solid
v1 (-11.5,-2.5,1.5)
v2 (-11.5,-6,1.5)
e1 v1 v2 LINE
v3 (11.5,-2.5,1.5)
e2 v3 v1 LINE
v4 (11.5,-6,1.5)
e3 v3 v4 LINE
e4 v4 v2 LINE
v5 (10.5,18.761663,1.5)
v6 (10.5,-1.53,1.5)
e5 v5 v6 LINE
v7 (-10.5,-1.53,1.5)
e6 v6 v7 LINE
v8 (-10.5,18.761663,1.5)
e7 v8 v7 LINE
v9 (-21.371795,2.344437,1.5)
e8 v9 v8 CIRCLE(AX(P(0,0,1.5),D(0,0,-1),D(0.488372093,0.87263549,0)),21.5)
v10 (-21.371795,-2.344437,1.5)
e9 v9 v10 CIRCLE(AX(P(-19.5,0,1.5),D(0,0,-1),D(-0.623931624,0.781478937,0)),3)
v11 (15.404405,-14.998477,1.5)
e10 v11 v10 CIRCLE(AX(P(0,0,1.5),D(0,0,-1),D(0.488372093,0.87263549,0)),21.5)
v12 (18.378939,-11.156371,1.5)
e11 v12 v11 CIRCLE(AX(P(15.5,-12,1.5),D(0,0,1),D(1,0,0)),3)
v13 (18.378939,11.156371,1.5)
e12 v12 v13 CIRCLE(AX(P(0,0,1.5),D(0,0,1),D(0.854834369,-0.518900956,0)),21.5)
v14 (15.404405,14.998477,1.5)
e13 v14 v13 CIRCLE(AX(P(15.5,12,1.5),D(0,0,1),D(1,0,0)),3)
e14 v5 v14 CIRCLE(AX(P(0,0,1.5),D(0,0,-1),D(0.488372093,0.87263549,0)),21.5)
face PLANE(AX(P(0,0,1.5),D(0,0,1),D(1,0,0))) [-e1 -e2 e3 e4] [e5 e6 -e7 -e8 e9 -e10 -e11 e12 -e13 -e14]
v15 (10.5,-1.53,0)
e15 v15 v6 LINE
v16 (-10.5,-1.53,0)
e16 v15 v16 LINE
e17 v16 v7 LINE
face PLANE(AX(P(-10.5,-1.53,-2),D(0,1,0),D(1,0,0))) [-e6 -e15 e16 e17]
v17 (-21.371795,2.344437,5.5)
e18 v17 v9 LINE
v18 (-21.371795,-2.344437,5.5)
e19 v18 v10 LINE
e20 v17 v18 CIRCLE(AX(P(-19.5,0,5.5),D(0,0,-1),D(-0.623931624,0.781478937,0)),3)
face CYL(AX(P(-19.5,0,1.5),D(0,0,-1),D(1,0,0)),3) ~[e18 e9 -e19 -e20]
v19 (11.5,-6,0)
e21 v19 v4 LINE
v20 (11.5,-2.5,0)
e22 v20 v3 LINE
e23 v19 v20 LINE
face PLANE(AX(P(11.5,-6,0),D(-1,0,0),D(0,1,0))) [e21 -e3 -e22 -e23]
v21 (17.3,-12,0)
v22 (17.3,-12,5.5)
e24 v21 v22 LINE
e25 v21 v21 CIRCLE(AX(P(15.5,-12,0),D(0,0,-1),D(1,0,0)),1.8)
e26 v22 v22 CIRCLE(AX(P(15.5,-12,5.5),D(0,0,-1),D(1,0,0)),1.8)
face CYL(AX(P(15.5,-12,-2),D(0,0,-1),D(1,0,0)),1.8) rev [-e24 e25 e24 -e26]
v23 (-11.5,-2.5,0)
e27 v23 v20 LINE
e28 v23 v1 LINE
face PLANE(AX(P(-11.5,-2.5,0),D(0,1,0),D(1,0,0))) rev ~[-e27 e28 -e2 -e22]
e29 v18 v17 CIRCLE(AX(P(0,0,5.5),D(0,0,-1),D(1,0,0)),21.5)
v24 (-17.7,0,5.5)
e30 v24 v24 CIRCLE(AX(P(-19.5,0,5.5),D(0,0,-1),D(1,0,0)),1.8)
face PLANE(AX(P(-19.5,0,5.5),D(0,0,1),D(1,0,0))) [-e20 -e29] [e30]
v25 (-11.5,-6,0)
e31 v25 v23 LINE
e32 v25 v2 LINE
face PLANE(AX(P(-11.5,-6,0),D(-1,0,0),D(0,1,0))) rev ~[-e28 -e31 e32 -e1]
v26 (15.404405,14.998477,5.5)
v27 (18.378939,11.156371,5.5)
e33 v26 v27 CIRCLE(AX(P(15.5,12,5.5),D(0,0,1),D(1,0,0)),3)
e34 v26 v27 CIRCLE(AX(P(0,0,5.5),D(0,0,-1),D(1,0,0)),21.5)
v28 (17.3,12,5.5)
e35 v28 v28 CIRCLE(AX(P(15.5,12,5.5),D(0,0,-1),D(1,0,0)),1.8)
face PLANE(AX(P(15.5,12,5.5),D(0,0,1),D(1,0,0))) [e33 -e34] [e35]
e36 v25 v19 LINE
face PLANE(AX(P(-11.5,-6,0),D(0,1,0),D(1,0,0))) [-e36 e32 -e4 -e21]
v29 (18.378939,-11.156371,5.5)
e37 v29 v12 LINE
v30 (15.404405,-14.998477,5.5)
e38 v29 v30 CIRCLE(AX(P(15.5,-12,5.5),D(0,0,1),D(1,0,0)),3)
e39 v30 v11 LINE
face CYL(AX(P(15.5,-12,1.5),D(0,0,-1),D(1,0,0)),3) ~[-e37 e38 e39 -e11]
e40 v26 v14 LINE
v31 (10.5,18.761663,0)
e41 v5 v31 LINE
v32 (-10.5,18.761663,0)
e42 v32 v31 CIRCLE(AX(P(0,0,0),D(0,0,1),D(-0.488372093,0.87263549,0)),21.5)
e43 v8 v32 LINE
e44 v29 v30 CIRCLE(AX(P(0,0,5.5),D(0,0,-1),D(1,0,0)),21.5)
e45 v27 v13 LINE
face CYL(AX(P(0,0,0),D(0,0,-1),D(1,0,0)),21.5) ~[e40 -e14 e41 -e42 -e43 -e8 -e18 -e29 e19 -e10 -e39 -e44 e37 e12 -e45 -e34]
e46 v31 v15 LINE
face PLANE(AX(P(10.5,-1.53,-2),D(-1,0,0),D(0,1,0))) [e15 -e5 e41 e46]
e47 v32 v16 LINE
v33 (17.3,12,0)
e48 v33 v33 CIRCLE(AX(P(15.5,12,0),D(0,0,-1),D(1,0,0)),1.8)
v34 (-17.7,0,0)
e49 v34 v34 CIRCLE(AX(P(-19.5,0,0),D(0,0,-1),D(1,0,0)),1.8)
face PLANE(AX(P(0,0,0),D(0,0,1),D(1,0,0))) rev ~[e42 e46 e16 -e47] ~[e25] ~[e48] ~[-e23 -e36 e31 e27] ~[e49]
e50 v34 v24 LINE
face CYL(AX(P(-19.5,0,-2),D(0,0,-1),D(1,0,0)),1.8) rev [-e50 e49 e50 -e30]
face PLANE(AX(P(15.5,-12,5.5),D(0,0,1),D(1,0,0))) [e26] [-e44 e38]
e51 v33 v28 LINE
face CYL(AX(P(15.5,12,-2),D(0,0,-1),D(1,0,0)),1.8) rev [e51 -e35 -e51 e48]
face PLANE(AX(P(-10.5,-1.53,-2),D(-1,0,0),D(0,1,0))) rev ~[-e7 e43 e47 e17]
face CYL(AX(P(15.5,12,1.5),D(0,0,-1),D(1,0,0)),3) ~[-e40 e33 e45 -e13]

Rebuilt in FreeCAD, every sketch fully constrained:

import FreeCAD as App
import Part
import Sketcher
Q = App.Units.Quantity


def add_polygon(sketch, points):
    """Adds a closed chain of lines whose ends are joined by coincident constraints."""
    first, n = sketch.GeometryCount, len(points)
    for a, b in zip(points, points[1:] + points[:1]):
        sketch.addGeometry(Part.LineSegment(App.Vector(*a, 0), App.Vector(*b, 0)), False)
    for i in range(n):
        sketch.addConstraint(Sketcher.Constraint("Coincident", first + i, 2, first + (i + 1) % n, 1))

doc = App.newDocument("Part")
params = doc.addObject("Spreadsheet::Sheet", "Params")
for row, (alias, value) in enumerate([
    ("sketch1_diameter", "43 mm"),
    ("pad1_length", "10 mm"),
    ("sketch2_width", "50 mm"),
    ("pad2_length", "10 mm"),
    ("sketch3_diameter", "3.6 mm"),
    ("pad3_length", "10 mm"),
    ("sketch4_diameter", "6 mm"),
    ("pad4_length", "4 mm"),
    ("sketch5_diameter", "3.6 mm"),
    ("pad5_length", "10 mm"),
    ("sketch6_diameter", "6 mm"),
    ("pad6_length", "4 mm"),
    ("sketch7_diameter", "3.6 mm"),
    ("pad7_length", "10 mm"),
    ("sketch8_diameter", "6 mm"),
    ("pad8_length", "4 mm"),
    ("sketch9_width", "23 mm"),
    ("sketch9_height", "3.5 mm"),
    ("pad9_length", "2 mm"),
    ("sketch10_width", "21 mm"),
    ("sketch10_height", "25 mm"),
    ("pad10_length", "5 mm"),
    ("sketch11_diameter", "43 mm"),
    ("pad11_length", "1.5 mm"),
], start=1):
    params.set(f"A{row}", alias)
    params.set(f"B{row}", "=" + value)
    params.setAlias(f"B{row}", alias)

body = doc.addObject("PartDesign::Body", "Body")

sketch1 = doc.addObject("Sketcher::SketchObject", "Sketch")
body.addObject(sketch1)
sketch1.AttachmentSupport = (doc.XY_Plane, [""])
sketch1.MapMode = "FlatFace"
sketch1.addGeometry(Part.Circle(App.Vector(0, 0, 0), App.Vector(0, 0, 1), 22), False)
sketch1.addConstraint(Sketcher.Constraint("Coincident", 0, 3, -1, 1))
sketch1.addConstraint(Sketcher.Constraint("Diameter", 0, Q("43 mm")))
sketch1.setExpression("Constraints[1]", "Params.sketch1_diameter")
pad1 = doc.addObject("PartDesign::Pad", "Pad")
body.addObject(pad1)
pad1.Profile = sketch1
pad1.setExpression("Length", "Params.pad1_length")
body2 = doc.addObject("PartDesign::Body", "Body001")

sketch2 = doc.addObject("Sketcher::SketchObject", "Sketch001")
body2.addObject(sketch2)
sketch2.AttachmentSupport = (doc.getObject("XY_Plane001"), [""])
sketch2.MapMode = "FlatFace"
add_polygon(sketch2, [(-25, 25), (-25, -25), (25, -25), (25, 25)])
sketch2.addConstraint(Sketcher.Constraint("Vertical", 0))
sketch2.addConstraint(Sketcher.Constraint("Horizontal", 1))
sketch2.addConstraint(Sketcher.Constraint("Vertical", 2))
sketch2.addConstraint(Sketcher.Constraint("Horizontal", 3))
sketch2.addConstraint(Sketcher.Constraint("Symmetric", 0, 2, 2, 2, -1, 1))
sketch2.addConstraint(Sketcher.Constraint("Equal", 3, 0))
sketch2.addConstraint(Sketcher.Constraint("DistanceX", 1, 1, 1, 2, Q("50 mm")))
sketch2.setExpression("Constraints[10]", "Params.sketch2_width")
pad2 = doc.addObject("PartDesign::Pad", "Pad001")
body2.addObject(pad2)
pad2.Profile = sketch2
pad2.setExpression("Length", "Params.pad2_length")
doc.recompute()

boolean = doc.addObject("PartDesign::Boolean", "Boolean")
body2.addObject(boolean)
boolean.Type = "Cut"
boolean.addObjects([body])
body3 = doc.addObject("PartDesign::Body", "Body002")

sketch3 = doc.addObject("Sketcher::SketchObject", "Sketch002")
body3.addObject(sketch3)
sketch3.AttachmentSupport = (doc.getObject("XY_Plane002"), [""])
sketch3.MapMode = "FlatFace"
sketch3.AttachmentOffset = App.Placement(App.Vector(0, 0, -2), App.Rotation())
sketch3.addGeometry(Part.Circle(App.Vector(15.5, 12, 0), App.Vector(0, 0, 1), 1.8), False)
sketch3.addConstraint(Sketcher.Constraint("Diameter", 0, Q("3.6 mm")))
sketch3.addConstraint(Sketcher.Constraint("DistanceY", -1, 1, 0, 3, Q("12 mm")))
sketch3.addConstraint(Sketcher.Constraint("DistanceX", -1, 1, 0, 3, Q("15.5 mm")))
sketch3.setExpression("Constraints[0]", "Params.sketch3_diameter")
pad3 = doc.addObject("PartDesign::Pad", "Pad002")
body3.addObject(pad3)
pad3.Profile = sketch3
pad3.setExpression("Length", "Params.pad3_length")
body4 = doc.addObject("PartDesign::Body", "Body003")

sketch4 = doc.addObject("Sketcher::SketchObject", "Sketch003")
body4.addObject(sketch4)
sketch4.AttachmentSupport = (doc.getObject("XY_Plane003"), [""])
sketch4.MapMode = "FlatFace"
sketch4.AttachmentOffset = App.Placement(App.Vector(0, 0, 1.5), App.Rotation())
sketch4.addGeometry(Part.Circle(App.Vector(15.5, 12, 0), App.Vector(0, 0, 1), 3), False)
sketch4.addConstraint(Sketcher.Constraint("Diameter", 0, Q("6 mm")))
sketch4.addConstraint(Sketcher.Constraint("DistanceY", -1, 1, 0, 3, Q("12 mm")))
sketch4.addConstraint(Sketcher.Constraint("DistanceX", -1, 1, 0, 3, Q("15.5 mm")))
sketch4.setExpression("Constraints[0]", "Params.sketch4_diameter")
pad4 = doc.addObject("PartDesign::Pad", "Pad003")
body4.addObject(pad4)
pad4.Profile = sketch4
pad4.setExpression("Length", "Params.pad4_length")
body5 = doc.addObject("PartDesign::Body", "Body004")

sketch5 = doc.addObject("Sketcher::SketchObject", "Sketch004")
body5.addObject(sketch5)
sketch5.AttachmentSupport = (doc.getObject("XY_Plane004"), [""])
sketch5.MapMode = "FlatFace"
sketch5.AttachmentOffset = App.Placement(App.Vector(0, 0, -2), App.Rotation())
sketch5.addGeometry(Part.Circle(App.Vector(15.5, -12, 0), App.Vector(0, 0, 1), 1.8), False)
sketch5.addConstraint(Sketcher.Constraint("Diameter", 0, Q("3.6 mm")))
sketch5.addConstraint(Sketcher.Constraint("DistanceY", 0, 3, -1, 1, Q("12 mm")))
sketch5.addConstraint(Sketcher.Constraint("DistanceX", -1, 1, 0, 3, Q("15.5 mm")))
sketch5.setExpression("Constraints[0]", "Params.sketch5_diameter")
pad5 = doc.addObject("PartDesign::Pad", "Pad004")
body5.addObject(pad5)
pad5.Profile = sketch5
pad5.setExpression("Length", "Params.pad5_length")
body6 = doc.addObject("PartDesign::Body", "Body005")

sketch6 = doc.addObject("Sketcher::SketchObject", "Sketch005")
body6.addObject(sketch6)
sketch6.AttachmentSupport = (doc.getObject("XY_Plane005"), [""])
sketch6.MapMode = "FlatFace"
sketch6.AttachmentOffset = App.Placement(App.Vector(0, 0, 1.5), App.Rotation())
sketch6.addGeometry(Part.Circle(App.Vector(15.5, -12, 0), App.Vector(0, 0, 1), 3), False)
sketch6.addConstraint(Sketcher.Constraint("Diameter", 0, Q("6 mm")))
sketch6.addConstraint(Sketcher.Constraint("DistanceY", 0, 3, -1, 1, Q("12 mm")))
sketch6.addConstraint(Sketcher.Constraint("DistanceX", -1, 1, 0, 3, Q("15.5 mm")))
sketch6.setExpression("Constraints[0]", "Params.sketch6_diameter")
pad6 = doc.addObject("PartDesign::Pad", "Pad005")
body6.addObject(pad6)
pad6.Profile = sketch6
pad6.setExpression("Length", "Params.pad6_length")
body7 = doc.addObject("PartDesign::Body", "Body006")

sketch7 = doc.addObject("Sketcher::SketchObject", "Sketch006")
body7.addObject(sketch7)
sketch7.AttachmentSupport = (doc.getObject("XY_Plane006"), [""])
sketch7.MapMode = "FlatFace"
sketch7.AttachmentOffset = App.Placement(App.Vector(0, 0, -2), App.Rotation())
sketch7.addGeometry(Part.Circle(App.Vector(-19.5, 0, 0), App.Vector(0, 0, 1), 1.8), False)
sketch7.addConstraint(Sketcher.Constraint("PointOnObject", 0, 3, -1))
sketch7.addConstraint(Sketcher.Constraint("Diameter", 0, Q("3.6 mm")))
sketch7.addConstraint(Sketcher.Constraint("DistanceX", 0, 3, -1, 1, Q("19.5 mm")))
sketch7.setExpression("Constraints[1]", "Params.sketch7_diameter")
pad7 = doc.addObject("PartDesign::Pad", "Pad006")
body7.addObject(pad7)
pad7.Profile = sketch7
pad7.setExpression("Length", "Params.pad7_length")
body8 = doc.addObject("PartDesign::Body", "Body007")

sketch8 = doc.addObject("Sketcher::SketchObject", "Sketch007")
body8.addObject(sketch8)
sketch8.AttachmentSupport = (doc.getObject("XY_Plane007"), [""])
sketch8.MapMode = "FlatFace"
sketch8.AttachmentOffset = App.Placement(App.Vector(0, 0, 1.5), App.Rotation())
sketch8.addGeometry(Part.Circle(App.Vector(-19.5, 0, 0), App.Vector(0, 0, 1), 3), False)
sketch8.addConstraint(Sketcher.Constraint("PointOnObject", 0, 3, -1))
sketch8.addConstraint(Sketcher.Constraint("Diameter", 0, Q("6 mm")))
sketch8.addConstraint(Sketcher.Constraint("DistanceX", 0, 3, -1, 1, Q("19.5 mm")))
sketch8.setExpression("Constraints[1]", "Params.sketch8_diameter")
pad8 = doc.addObject("PartDesign::Pad", "Pad007")
body8.addObject(pad8)
pad8.Profile = sketch8
pad8.setExpression("Length", "Params.pad8_length")
body9 = doc.addObject("PartDesign::Body", "Body008")

sketch9 = doc.addObject("Sketcher::SketchObject", "Sketch008")
body9.addObject(sketch9)
sketch9.AttachmentSupport = (doc.getObject("XY_Plane008"), [""])
sketch9.MapMode = "FlatFace"
add_polygon(sketch9, [(-11.5, -2.5), (-11.5, -6), (11.5, -6), (11.5, -2.5)])
sketch9.addConstraint(Sketcher.Constraint("Vertical", 0))
sketch9.addConstraint(Sketcher.Constraint("Horizontal", 1))
sketch9.addConstraint(Sketcher.Constraint("Vertical", 2))
sketch9.addConstraint(Sketcher.Constraint("Horizontal", 3))
sketch9.addConstraint(Sketcher.Constraint("DistanceX", 1, 1, 1, 2, Q("23 mm")))
sketch9.addConstraint(Sketcher.Constraint("DistanceY", 0, 2, 0, 1, Q("3.5 mm")))
sketch9.addConstraint(Sketcher.Constraint("DistanceY", 0, 2, -1, 1, Q("6 mm")))
sketch9.addConstraint(Sketcher.Constraint("DistanceX", 0, 2, -1, 1, Q("11.5 mm")))
sketch9.setExpression("Constraints[8]", "Params.sketch9_width")
sketch9.setExpression("Constraints[9]", "Params.sketch9_height")
pad9 = doc.addObject("PartDesign::Pad", "Pad008")
body9.addObject(pad9)
pad9.Profile = sketch9
pad9.setExpression("Length", "Params.pad9_length")
body10 = doc.addObject("PartDesign::Body", "Body009")

sketch10 = doc.addObject("Sketcher::SketchObject", "Sketch009")
body10.addObject(sketch10)
sketch10.AttachmentSupport = (doc.getObject("XY_Plane009"), [""])
sketch10.MapMode = "FlatFace"
sketch10.AttachmentOffset = App.Placement(App.Vector(0, 0, -2), App.Rotation())
add_polygon(sketch10, [(-10, 23), (-10, -2), (10, -2), (10, 23)])
sketch10.addConstraint(Sketcher.Constraint("Vertical", 0))
sketch10.addConstraint(Sketcher.Constraint("Horizontal", 1))
sketch10.addConstraint(Sketcher.Constraint("Vertical", 2))
sketch10.addConstraint(Sketcher.Constraint("Horizontal", 3))
sketch10.addConstraint(Sketcher.Constraint("DistanceX", 1, 1, 1, 2, Q("21 mm")))
sketch10.addConstraint(Sketcher.Constraint("DistanceY", 0, 2, 0, 1, Q("25 mm")))
sketch10.addConstraint(Sketcher.Constraint("DistanceX", 0, 2, -1, 1, Q("10.5 mm")))
sketch10.addConstraint(Sketcher.Constraint("DistanceY", 0, 2, -1, 1, Q("1.53 mm")))
sketch10.setExpression("Constraints[8]", "Params.sketch10_width")
sketch10.setExpression("Constraints[9]", "Params.sketch10_height")
pad10 = doc.addObject("PartDesign::Pad", "Pad009")
body10.addObject(pad10)
pad10.Profile = sketch10
pad10.setExpression("Length", "Params.pad10_length")
body11 = doc.addObject("PartDesign::Body", "Body010")

sketch11 = doc.addObject("Sketcher::SketchObject", "Sketch010")
body11.addObject(sketch11)
sketch11.AttachmentSupport = (doc.getObject("XY_Plane010"), [""])
sketch11.MapMode = "FlatFace"
sketch11.addGeometry(Part.Circle(App.Vector(0, 0, 0), App.Vector(0, 0, 1), 22), False)
sketch11.addConstraint(Sketcher.Constraint("Coincident", 0, 3, -1, 1))
sketch11.addConstraint(Sketcher.Constraint("Diameter", 0, Q("43 mm")))
sketch11.setExpression("Constraints[1]", "Params.sketch11_diameter")
pad11 = doc.addObject("PartDesign::Pad", "Pad010")
body11.addObject(pad11)
pad11.Profile = sketch11
pad11.setExpression("Length", "Params.pad11_length")
doc.recompute()

boolean2 = doc.addObject("PartDesign::Boolean", "Boolean001")
body11.addObject(boolean2)
boolean2.Type = "Cut"
boolean2.addObjects([body10])
doc.recompute()

boolean3 = doc.addObject("PartDesign::Boolean", "Boolean002")
body11.addObject(boolean3)
boolean3.Type = "Cut"
boolean3.addObjects([body9])
doc.recompute()

boolean4 = doc.addObject("PartDesign::Boolean", "Boolean003")
body11.addObject(boolean4)
boolean4.Type = "Fuse"
boolean4.addObjects([body8])
doc.recompute()

boolean5 = doc.addObject("PartDesign::Boolean", "Boolean004")
body11.addObject(boolean5)
boolean5.Type = "Cut"
boolean5.addObjects([body7])
doc.recompute()

boolean6 = doc.addObject("PartDesign::Boolean", "Boolean005")
body11.addObject(boolean6)
boolean6.Type = "Fuse"
boolean6.addObjects([body6])
doc.recompute()

boolean7 = doc.addObject("PartDesign::Boolean", "Boolean006")
body11.addObject(boolean7)
boolean7.Type = "Cut"
boolean7.addObjects([body5])
doc.recompute()

boolean8 = doc.addObject("PartDesign::Boolean", "Boolean007")
body11.addObject(boolean8)
boolean8.Type = "Fuse"
boolean8.addObjects([body4])
doc.recompute()

boolean9 = doc.addObject("PartDesign::Boolean", "Boolean008")
body11.addObject(boolean9)
boolean9.Type = "Cut"
boolean9.addObjects([body3])
doc.recompute()

boolean10 = doc.addObject("PartDesign::Boolean", "Boolean009")
body11.addObject(boolean10)
boolean10.Type = "Cut"
boolean10.addObjects([body2])

doc.recompute()
